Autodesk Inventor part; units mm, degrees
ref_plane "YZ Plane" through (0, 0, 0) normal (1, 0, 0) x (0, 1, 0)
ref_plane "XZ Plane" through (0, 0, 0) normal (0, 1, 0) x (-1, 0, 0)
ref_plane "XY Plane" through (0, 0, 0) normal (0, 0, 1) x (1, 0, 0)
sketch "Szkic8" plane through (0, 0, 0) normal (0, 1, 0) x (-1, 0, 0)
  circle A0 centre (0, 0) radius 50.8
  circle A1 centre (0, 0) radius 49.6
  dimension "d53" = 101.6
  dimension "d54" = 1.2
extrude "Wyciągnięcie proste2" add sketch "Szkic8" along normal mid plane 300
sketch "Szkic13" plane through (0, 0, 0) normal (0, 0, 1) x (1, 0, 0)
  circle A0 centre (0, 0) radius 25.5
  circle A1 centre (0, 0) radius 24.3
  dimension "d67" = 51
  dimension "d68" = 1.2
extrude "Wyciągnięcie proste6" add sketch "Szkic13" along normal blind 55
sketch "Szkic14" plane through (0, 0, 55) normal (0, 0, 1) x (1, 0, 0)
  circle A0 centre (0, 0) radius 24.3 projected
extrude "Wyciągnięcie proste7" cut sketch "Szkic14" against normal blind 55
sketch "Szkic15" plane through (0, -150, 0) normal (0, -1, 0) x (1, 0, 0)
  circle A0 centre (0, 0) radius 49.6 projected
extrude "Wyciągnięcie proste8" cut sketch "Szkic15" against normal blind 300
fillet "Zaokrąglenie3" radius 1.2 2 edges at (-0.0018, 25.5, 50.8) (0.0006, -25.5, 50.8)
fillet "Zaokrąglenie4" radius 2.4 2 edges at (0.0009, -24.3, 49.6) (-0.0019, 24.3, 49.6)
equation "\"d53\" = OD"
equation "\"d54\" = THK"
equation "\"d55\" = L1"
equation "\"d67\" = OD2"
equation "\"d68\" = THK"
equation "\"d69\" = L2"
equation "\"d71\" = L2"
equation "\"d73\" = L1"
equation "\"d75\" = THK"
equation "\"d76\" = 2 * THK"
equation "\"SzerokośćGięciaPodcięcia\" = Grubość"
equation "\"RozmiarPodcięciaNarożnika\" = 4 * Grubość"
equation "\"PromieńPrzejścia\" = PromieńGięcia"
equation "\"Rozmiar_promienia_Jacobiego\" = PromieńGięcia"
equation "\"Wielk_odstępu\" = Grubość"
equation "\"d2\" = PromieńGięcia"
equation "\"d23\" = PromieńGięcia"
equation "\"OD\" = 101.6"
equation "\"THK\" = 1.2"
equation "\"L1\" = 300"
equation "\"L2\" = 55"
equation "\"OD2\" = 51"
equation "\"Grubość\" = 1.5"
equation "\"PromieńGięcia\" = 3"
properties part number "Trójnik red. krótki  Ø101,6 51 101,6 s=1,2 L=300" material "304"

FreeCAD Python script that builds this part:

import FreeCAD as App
import Part
import Sketcher

V = App.Vector
Q = App.Units.Quantity


def edges_at(feature, points):
    """Names of the edges that pass closest to the given points."""
    edges = feature.Shape.Edges
    near = lambda p: min(range(len(edges)), key=lambda i: edges[i].distToShape(Part.Vertex(*p))[0])
    return sorted({f"Edge{near(p) + 1}" for p in points})

doc = App.newDocument("Part")
body = doc.addObject("PartDesign::Body", "Body")

sketch1 = body.newObject("Sketcher::SketchObject", "Sketch")
sketch1.AttachmentSupport = (doc.getObject("XZ_Plane"), [""])
sketch1.MapMode = "FlatFace"
sketch1.addGeometry([
    Part.Circle(V(0, 0, 0), V(0, 0, 1), 51),
    Part.Circle(V(0, 0, 0), V(0, 0, 1), 50),
], False)
sketch1.addConstraint([
    Sketcher.Constraint("Coincident", 0, 3, -1, 1),
    Sketcher.Constraint("Coincident", 1, 3, -1, 1),
    Sketcher.Constraint("Diameter", 0, Q("101.6 mm")),
    Sketcher.Constraint("Diameter", 1, Q("99.2 mm")),
])
pad1 = body.newObject("PartDesign::Pad", "Pad")
pad1.Profile = sketch1
pad1.Length = 300
pad1.Midplane = True

sketch2 = body.newObject("Sketcher::SketchObject", "Sketch001")
sketch2.AttachmentSupport = (doc.getObject("XY_Plane"), [""])
sketch2.MapMode = "FlatFace"
sketch2.addGeometry([
    Part.Circle(V(0, 0, 0), V(0, 0, 1), 26),
    Part.Circle(V(0, 0, 0), V(0, 0, 1), 24),
], False)
sketch2.addConstraint([
    Sketcher.Constraint("Coincident", 0, 3, -1, 1),
    Sketcher.Constraint("Coincident", 1, 3, -1, 1),
    Sketcher.Constraint("Diameter", 0, Q("51 mm")),
    Sketcher.Constraint("Diameter", 1, Q("48.6 mm")),
])
pad2 = body.newObject("PartDesign::Pad", "Pad001")
pad2.Profile = sketch2
pad2.Length = 55

sketch3 = body.newObject("Sketcher::SketchObject", "Sketch002")
sketch3.AttachmentSupport = (doc.getObject("XY_Plane"), [""])
sketch3.MapMode = "FlatFace"
sketch3.AttachmentOffset = App.Placement(V(0, 0, 55), App.Rotation())
sketch3.addGeometry(Part.Circle(V(0, 0, 0), V(0, 0, 1), 24), False)
sketch3.addConstraint([
    Sketcher.Constraint("Coincident", 0, 3, -1, 1),
    Sketcher.Constraint("Diameter", 0, Q("48.6 mm")),
])
pocket1 = body.newObject("PartDesign::Pocket", "Pocket")
pocket1.Profile = sketch3
pocket1.Length = 55

sketch4 = body.newObject("Sketcher::SketchObject", "Sketch003")
sketch4.AttachmentSupport = (doc.getObject("XZ_Plane"), [""])
sketch4.MapMode = "FlatFace"
sketch4.AttachmentOffset = App.Placement(V(0, 0, 150), App.Rotation())
sketch4.addGeometry(Part.Circle(V(0, 0, 0), V(0, 0, 1), 50), False)
sketch4.addConstraint([
    Sketcher.Constraint("Coincident", 0, 3, -1, 1),
    Sketcher.Constraint("Diameter", 0, Q("99.2 mm")),
])
pocket2 = body.newObject("PartDesign::Pocket", "Pocket001")
pocket2.Profile = sketch4
pocket2.Length = 300
doc.recompute()

fillet = body.newObject("PartDesign::Fillet", "Fillet")
fillet.Base = (pocket2, edges_at(pocket2, [(-0.002, 25.5, 50.8), (0.001, -25.5, 50.8)]))
fillet.Radius = 1.2
doc.recompute()

fillet2 = body.newObject("PartDesign::Fillet", "Fillet001")
fillet2.Base = (fillet, edges_at(fillet, [(0.001, -24.3, 49.6), (-0.002, 24.3, 49.6)]))
fillet2.Radius = 2.4

doc.recompute()
